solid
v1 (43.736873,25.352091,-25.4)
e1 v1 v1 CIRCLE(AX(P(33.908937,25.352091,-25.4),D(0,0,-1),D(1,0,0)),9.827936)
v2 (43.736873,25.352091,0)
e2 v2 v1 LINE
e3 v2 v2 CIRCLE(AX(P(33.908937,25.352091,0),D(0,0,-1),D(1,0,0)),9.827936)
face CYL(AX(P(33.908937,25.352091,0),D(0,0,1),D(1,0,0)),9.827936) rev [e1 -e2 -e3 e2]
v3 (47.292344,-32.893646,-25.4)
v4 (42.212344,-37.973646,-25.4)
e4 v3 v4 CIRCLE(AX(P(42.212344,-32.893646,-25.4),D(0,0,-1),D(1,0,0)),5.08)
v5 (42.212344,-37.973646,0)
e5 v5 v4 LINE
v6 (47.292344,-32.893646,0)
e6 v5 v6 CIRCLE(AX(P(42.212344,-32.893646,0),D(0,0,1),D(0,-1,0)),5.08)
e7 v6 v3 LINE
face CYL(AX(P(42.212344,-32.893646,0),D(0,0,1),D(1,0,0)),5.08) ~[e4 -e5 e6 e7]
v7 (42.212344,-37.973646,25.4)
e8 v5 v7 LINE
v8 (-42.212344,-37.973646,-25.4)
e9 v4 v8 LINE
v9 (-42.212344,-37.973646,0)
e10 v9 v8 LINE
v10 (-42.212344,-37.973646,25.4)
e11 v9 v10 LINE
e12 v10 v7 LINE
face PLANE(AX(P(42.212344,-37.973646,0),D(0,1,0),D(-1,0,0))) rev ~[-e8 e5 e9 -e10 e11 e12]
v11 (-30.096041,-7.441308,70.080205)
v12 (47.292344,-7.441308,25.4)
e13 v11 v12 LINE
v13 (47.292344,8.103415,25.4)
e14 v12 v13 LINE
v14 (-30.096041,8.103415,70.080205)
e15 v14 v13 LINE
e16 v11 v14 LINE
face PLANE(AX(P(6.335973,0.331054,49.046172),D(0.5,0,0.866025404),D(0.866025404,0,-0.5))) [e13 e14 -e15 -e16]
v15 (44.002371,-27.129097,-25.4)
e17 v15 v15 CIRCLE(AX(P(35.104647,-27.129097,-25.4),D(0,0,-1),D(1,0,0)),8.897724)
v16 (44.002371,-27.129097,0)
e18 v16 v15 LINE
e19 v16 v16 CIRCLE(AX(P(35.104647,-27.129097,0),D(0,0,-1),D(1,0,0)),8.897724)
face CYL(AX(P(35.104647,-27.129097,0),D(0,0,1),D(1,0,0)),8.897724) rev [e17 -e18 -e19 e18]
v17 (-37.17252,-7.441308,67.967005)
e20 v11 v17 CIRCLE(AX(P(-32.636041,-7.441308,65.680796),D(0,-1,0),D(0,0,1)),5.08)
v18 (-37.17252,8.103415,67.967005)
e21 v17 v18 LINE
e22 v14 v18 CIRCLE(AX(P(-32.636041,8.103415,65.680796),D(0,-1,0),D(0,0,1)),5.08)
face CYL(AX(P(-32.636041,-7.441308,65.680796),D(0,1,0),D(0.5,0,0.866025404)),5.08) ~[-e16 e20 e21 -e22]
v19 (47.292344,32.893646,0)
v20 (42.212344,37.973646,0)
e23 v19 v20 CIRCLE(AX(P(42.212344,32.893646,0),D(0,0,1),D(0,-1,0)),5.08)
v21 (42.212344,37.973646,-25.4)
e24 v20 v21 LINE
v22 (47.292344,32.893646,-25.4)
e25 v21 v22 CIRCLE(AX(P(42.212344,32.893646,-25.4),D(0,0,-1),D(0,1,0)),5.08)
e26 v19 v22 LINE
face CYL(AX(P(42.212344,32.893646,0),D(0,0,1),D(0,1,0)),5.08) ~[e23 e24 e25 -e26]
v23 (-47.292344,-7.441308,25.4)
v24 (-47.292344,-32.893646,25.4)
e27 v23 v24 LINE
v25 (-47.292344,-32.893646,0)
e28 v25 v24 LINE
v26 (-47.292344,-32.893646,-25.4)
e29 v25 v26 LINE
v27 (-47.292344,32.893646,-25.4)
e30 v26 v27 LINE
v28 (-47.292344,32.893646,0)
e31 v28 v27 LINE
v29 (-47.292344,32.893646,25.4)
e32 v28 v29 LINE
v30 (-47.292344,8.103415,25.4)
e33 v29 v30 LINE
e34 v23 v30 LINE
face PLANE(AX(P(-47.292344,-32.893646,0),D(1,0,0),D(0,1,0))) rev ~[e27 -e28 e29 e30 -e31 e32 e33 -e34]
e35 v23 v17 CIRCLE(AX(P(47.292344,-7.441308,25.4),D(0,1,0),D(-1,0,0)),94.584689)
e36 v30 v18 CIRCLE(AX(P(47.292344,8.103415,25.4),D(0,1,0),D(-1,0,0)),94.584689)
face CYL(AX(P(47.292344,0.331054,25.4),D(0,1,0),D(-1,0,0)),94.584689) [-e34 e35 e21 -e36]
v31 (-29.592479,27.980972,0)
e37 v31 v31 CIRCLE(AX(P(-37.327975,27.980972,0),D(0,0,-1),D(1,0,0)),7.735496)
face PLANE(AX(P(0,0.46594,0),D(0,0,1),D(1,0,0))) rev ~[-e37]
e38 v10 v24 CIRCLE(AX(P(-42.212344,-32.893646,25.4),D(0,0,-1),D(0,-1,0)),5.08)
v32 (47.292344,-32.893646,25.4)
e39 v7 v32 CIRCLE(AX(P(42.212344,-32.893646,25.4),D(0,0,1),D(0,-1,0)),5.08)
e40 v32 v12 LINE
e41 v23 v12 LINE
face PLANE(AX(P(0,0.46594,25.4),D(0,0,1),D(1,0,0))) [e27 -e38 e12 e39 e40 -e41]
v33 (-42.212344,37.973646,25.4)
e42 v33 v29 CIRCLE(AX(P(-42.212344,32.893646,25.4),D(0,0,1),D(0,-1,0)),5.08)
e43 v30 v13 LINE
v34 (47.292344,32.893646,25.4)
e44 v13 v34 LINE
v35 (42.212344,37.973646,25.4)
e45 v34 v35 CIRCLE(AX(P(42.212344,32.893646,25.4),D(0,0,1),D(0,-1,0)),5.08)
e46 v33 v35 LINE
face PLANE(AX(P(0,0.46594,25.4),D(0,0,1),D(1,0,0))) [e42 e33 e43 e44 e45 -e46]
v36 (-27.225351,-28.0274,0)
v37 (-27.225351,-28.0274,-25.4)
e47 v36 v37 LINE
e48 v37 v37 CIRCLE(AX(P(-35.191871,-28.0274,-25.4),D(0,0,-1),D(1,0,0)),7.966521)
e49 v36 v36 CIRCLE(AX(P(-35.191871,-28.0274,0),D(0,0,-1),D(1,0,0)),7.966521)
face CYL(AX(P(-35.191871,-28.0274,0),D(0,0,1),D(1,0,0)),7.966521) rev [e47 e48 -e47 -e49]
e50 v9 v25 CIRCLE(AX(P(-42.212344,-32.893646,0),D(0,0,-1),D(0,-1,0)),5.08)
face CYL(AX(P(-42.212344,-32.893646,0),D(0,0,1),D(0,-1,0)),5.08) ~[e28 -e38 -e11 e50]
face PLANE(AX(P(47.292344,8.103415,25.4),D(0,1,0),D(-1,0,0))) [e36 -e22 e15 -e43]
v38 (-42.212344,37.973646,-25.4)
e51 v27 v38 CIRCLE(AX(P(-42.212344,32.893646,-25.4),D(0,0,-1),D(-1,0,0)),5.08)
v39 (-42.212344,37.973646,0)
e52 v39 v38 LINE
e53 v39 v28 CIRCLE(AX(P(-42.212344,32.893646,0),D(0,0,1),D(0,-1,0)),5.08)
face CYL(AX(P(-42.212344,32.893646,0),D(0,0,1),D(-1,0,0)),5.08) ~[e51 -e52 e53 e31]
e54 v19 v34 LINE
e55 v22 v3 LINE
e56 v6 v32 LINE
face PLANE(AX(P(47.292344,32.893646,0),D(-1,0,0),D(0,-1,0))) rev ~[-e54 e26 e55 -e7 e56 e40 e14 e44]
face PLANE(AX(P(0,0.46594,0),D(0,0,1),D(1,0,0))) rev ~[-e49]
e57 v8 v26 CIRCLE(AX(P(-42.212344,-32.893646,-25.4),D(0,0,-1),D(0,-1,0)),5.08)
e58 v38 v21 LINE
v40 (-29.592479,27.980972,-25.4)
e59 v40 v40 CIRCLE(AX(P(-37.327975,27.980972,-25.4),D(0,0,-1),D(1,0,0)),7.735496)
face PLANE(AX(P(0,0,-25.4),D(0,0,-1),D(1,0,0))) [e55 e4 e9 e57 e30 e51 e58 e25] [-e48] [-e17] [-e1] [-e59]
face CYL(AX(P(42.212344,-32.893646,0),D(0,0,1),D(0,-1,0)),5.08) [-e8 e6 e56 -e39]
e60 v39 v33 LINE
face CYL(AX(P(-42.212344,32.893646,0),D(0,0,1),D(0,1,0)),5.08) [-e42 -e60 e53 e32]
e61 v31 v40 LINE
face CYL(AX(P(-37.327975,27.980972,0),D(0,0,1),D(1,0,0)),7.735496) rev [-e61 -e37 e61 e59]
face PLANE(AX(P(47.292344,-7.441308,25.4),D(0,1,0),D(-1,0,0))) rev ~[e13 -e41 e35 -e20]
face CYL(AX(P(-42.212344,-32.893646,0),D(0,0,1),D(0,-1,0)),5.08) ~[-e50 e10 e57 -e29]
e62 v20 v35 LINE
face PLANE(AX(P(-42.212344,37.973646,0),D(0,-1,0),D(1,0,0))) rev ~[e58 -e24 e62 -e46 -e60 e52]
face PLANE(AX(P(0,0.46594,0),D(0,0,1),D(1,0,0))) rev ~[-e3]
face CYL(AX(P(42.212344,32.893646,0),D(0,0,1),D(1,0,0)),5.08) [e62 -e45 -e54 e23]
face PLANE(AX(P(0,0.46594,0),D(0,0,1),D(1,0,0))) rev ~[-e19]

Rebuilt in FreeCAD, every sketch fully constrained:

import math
import FreeCAD as App
import Part
import Sketcher
Q = App.Units.Quantity


def edges_at(feature, points):
    """Names of the edges that pass closest to the given points."""
    edges = feature.Shape.Edges
    near = lambda p: min(range(len(edges)), key=lambda i: edges[i].distToShape(Part.Vertex(*p))[0])
    return sorted({f"Edge{near(p) + 1}" for p in points})

doc = App.newDocument("Part")
body = doc.addObject("PartDesign::Body", "Body")

# Sketch on XY plane
sketch1 = body.newObject("Sketcher::SketchObject", "Sketch")
sketch1.AttachmentSupport = (doc.getObject("XY_Plane"), [""])
sketch1.MapMode = "FlatFace"
sketch1.addGeometry([
    Part.LineSegment(App.Vector(-47, -38, 0), App.Vector(47, -38, 0)),
    Part.LineSegment(App.Vector(47, -38, 0), App.Vector(47, 38, 0)),
    Part.LineSegment(App.Vector(47, 38, 0), App.Vector(-47, 38, 0)),
    Part.LineSegment(App.Vector(-47, 38, 0), App.Vector(-47, -38, 0)),
], False)
sketch1.addConstraint([
    Sketcher.Constraint("Coincident", 0, 2, 1, 1),
    Sketcher.Constraint("Coincident", 1, 2, 2, 1),
    Sketcher.Constraint("Coincident", 2, 2, 3, 1),
    Sketcher.Constraint("Coincident", 3, 2, 0, 1),
    Sketcher.Constraint("Horizontal", 0),
    Sketcher.Constraint("Vertical", 1),
    Sketcher.Constraint("Horizontal", 2),
    Sketcher.Constraint("Vertical", 3),
    Sketcher.Constraint("Symmetric", 0, 2, 2, 2, -1, 1),
    Sketcher.Constraint("DistanceX", 0, 1, 0, 2, Q("94.584689 mm")),
    Sketcher.Constraint("DistanceY", 1, 1, 1, 2, Q("75.947292 mm")),
])
pad1 = body.newObject("PartDesign::Pad", "Pad")
pad1.Profile = sketch1
pad1.Length = Q("1 in")

# Sketch on XY plane
sketch2 = body.newObject("Sketcher::SketchObject", "Sketch001")
sketch2.AttachmentSupport = (doc.getObject("XY_Plane"), [""])
sketch2.MapMode = "FlatFace"
sketch2.AttachmentOffset = App.Placement(App.Vector(0, 0, 1 * 25.4), App.Rotation())
sketch2.addGeometry([
    Part.LineSegment(App.Vector(-47, 8, 0), App.Vector(-47, -7, 0)),
    Part.LineSegment(App.Vector(-47, -7, 0), App.Vector(47, -7, 0)),
    Part.LineSegment(App.Vector(47, -7, 0), App.Vector(47, 8, 0)),
    Part.LineSegment(App.Vector(47, 8, 0), App.Vector(-47, 8, 0)),
], False)
sketch2.addGeometry(Part.LineSegment(App.Vector(47, -7, 0), App.Vector(47, 8, 0)), True)  # axis
sketch2.addConstraint([
    Sketcher.Constraint("Coincident", 0, 2, 1, 1),
    Sketcher.Constraint("Coincident", 1, 2, 2, 1),
    Sketcher.Constraint("Coincident", 2, 2, 3, 1),
    Sketcher.Constraint("Coincident", 3, 2, 0, 1),
    Sketcher.Constraint("Vertical", 0),
    Sketcher.Constraint("Horizontal", 1),
    Sketcher.Constraint("Vertical", 2),
    Sketcher.Constraint("Horizontal", 3),
    Sketcher.Constraint("Vertical", 4),
    Sketcher.Constraint("Coincident", 4, 1, 1, 2),
    Sketcher.Constraint("Symmetric", 3, 2, 4, 2, -2),
    Sketcher.Constraint("DistanceX", 1, 1, 1, 2, Q("94.584689 mm")),
    Sketcher.Constraint("DistanceY", 0, 2, 0, 1, Q("15.544723 mm")),
    Sketcher.Constraint("DistanceY", 0, 2, -1, 1, Q("7.441308 mm")),
])
revolution = body.newObject("PartDesign::Revolution", "Revolution")
revolution.Profile = sketch2
revolution.ReferenceAxis = (sketch2, ["Axis0"])
revolution.Angle = 30
doc.recompute()

fillet = body.newObject("PartDesign::Fillet", "Fillet")
fillet.Base = (revolution, edges_at(revolution, [(-47.292, -37.974, 12.7), (47.292, -37.974, 12.7)]))
fillet.Radius = Q("0.2 in")
doc.recompute()

fillet2 = body.newObject("PartDesign::Fillet", "Fillet001")
fillet2.Base = (fillet, edges_at(fillet, [(47.292, 37.974, 12.7)]))
fillet2.Radius = Q("0.2 in")
doc.recompute()

fillet3 = body.newObject("PartDesign::Fillet", "Fillet002")
fillet3.Base = (fillet2, edges_at(fillet2, [(-47.292, 37.974, 12.7), (-34.62, 0.331, 72.692)]))
fillet3.Radius = Q("0.2 in")

# Sketch on XY plane
sketch3 = body.newObject("Sketcher::SketchObject", "Sketch002")
sketch3.AttachmentSupport = (doc.getObject("XY_Plane"), [""])
sketch3.MapMode = "FlatFace"
sketch3.addGeometry([
    Part.ArcOfCircle(Part.Circle(App.Vector(-42, 33, 0), App.Vector(0, 0, 1), 5), math.radians(90), math.radians(180)),  # 0
    Part.LineSegment(App.Vector(-42, 38, 0), App.Vector(42, 38, 0)),  # 1
    Part.ArcOfCircle(Part.Circle(App.Vector(42, 33, 0), App.Vector(0, 0, 1), 5), math.radians(0), math.radians(90)),  # 2
    Part.LineSegment(App.Vector(47, 33, 0), App.Vector(47, -33, 0)),  # 3
    Part.ArcOfCircle(Part.Circle(App.Vector(42, -33, 0), App.Vector(0, 0, 1), 5), math.radians(-90), math.radians(0)),  # 4
    Part.LineSegment(App.Vector(42, -38, 0), App.Vector(-42, -38, 0)),  # 5
    Part.ArcOfCircle(Part.Circle(App.Vector(-42, -33, 0), App.Vector(0, 0, 1), 5), math.radians(180), math.radians(270)),  # 6
    Part.LineSegment(App.Vector(-47, -33, 0), App.Vector(-47, 33, 0)),  # 7
    Part.Circle(App.Vector(-37, 28, 0), App.Vector(0, 0, 1), 8),  # 8
    Part.Circle(App.Vector(34, 25, 0), App.Vector(0, 0, 1), 10),  # 9
    Part.Circle(App.Vector(-35, -28, 0), App.Vector(0, 0, 1), 8),  # 10
    Part.Circle(App.Vector(35, -27, 0), App.Vector(0, 0, 1), 9),  # 11
], False)
sketch3.addConstraint([
    Sketcher.Constraint("Tangent", 0, 1, 1, 1),
    Sketcher.Constraint("Tangent", 1, 2, 2, 2),
    Sketcher.Constraint("Tangent", 2, 1, 3, 1),
    Sketcher.Constraint("Tangent", 3, 2, 4, 2),
    Sketcher.Constraint("Tangent", 4, 1, 5, 1),
    Sketcher.Constraint("Tangent", 5, 2, 6, 2),
    Sketcher.Constraint("Tangent", 6, 1, 7, 1),
    Sketcher.Constraint("Tangent", 7, 2, 0, 2),
    Sketcher.Constraint("Horizontal", 1),
    Sketcher.Constraint("Vertical", 3),
    Sketcher.Constraint("Horizontal", 5),
    Sketcher.Constraint("Vertical", 7),
    Sketcher.Constraint("Equal", 0, 2),
    Sketcher.Constraint("Equal", 2, 4),
    Sketcher.Constraint("Equal", 4, 6),
    Sketcher.Constraint("Symmetric", 0, 3, 4, 3, -1, 1),
    Sketcher.Constraint("Radius", 0, Q("0.2 in")),
    Sketcher.Constraint("Diameter", 8, Q("15.470992 mm")),
    Sketcher.Constraint("Diameter", 9, Q("19.655871 mm")),
    Sketcher.Constraint("Diameter", 10, Q("15.933041 mm")),
    Sketcher.Constraint("Diameter", 11, Q("17.795447 mm")),
    Sketcher.Constraint("DistanceY", 11, 3, 2, 3, Q("2.3631001 in")),
    Sketcher.Constraint("DistanceX", 1, 1, 1, 2, Q("84.424689 mm")),
    Sketcher.Constraint("DistanceY", 10, 3, -1, 1, Q("28.0274 mm")),
    Sketcher.Constraint("DistanceY", 3, 2, 3, 1, Q("65.787292 mm")),
    Sketcher.Constraint("DistanceY", -1, 1, 9, 3, Q("25.352091 mm")),
    Sketcher.Constraint("DistanceX", 10, 3, -1, 1, Q("35.191871 mm")),
    Sketcher.Constraint("DistanceX", 0, 3, 8, 3, Q("4.884369 mm")),
    Sketcher.Constraint("DistanceY", 6, 3, 8, 3, Q("60.874618 mm")),
    Sketcher.Constraint("DistanceX", 0, 3, 9, 3, Q("76.121281 mm")),
    Sketcher.Constraint("DistanceX", 9, 3, 11, 3, Q("1.19571 mm")),
])
pad2 = body.newObject("PartDesign::Pad", "Pad001")
pad2.Profile = sketch3
pad2.Length = Q("1 in")
pad2.Reversed = True

doc.recompute()
